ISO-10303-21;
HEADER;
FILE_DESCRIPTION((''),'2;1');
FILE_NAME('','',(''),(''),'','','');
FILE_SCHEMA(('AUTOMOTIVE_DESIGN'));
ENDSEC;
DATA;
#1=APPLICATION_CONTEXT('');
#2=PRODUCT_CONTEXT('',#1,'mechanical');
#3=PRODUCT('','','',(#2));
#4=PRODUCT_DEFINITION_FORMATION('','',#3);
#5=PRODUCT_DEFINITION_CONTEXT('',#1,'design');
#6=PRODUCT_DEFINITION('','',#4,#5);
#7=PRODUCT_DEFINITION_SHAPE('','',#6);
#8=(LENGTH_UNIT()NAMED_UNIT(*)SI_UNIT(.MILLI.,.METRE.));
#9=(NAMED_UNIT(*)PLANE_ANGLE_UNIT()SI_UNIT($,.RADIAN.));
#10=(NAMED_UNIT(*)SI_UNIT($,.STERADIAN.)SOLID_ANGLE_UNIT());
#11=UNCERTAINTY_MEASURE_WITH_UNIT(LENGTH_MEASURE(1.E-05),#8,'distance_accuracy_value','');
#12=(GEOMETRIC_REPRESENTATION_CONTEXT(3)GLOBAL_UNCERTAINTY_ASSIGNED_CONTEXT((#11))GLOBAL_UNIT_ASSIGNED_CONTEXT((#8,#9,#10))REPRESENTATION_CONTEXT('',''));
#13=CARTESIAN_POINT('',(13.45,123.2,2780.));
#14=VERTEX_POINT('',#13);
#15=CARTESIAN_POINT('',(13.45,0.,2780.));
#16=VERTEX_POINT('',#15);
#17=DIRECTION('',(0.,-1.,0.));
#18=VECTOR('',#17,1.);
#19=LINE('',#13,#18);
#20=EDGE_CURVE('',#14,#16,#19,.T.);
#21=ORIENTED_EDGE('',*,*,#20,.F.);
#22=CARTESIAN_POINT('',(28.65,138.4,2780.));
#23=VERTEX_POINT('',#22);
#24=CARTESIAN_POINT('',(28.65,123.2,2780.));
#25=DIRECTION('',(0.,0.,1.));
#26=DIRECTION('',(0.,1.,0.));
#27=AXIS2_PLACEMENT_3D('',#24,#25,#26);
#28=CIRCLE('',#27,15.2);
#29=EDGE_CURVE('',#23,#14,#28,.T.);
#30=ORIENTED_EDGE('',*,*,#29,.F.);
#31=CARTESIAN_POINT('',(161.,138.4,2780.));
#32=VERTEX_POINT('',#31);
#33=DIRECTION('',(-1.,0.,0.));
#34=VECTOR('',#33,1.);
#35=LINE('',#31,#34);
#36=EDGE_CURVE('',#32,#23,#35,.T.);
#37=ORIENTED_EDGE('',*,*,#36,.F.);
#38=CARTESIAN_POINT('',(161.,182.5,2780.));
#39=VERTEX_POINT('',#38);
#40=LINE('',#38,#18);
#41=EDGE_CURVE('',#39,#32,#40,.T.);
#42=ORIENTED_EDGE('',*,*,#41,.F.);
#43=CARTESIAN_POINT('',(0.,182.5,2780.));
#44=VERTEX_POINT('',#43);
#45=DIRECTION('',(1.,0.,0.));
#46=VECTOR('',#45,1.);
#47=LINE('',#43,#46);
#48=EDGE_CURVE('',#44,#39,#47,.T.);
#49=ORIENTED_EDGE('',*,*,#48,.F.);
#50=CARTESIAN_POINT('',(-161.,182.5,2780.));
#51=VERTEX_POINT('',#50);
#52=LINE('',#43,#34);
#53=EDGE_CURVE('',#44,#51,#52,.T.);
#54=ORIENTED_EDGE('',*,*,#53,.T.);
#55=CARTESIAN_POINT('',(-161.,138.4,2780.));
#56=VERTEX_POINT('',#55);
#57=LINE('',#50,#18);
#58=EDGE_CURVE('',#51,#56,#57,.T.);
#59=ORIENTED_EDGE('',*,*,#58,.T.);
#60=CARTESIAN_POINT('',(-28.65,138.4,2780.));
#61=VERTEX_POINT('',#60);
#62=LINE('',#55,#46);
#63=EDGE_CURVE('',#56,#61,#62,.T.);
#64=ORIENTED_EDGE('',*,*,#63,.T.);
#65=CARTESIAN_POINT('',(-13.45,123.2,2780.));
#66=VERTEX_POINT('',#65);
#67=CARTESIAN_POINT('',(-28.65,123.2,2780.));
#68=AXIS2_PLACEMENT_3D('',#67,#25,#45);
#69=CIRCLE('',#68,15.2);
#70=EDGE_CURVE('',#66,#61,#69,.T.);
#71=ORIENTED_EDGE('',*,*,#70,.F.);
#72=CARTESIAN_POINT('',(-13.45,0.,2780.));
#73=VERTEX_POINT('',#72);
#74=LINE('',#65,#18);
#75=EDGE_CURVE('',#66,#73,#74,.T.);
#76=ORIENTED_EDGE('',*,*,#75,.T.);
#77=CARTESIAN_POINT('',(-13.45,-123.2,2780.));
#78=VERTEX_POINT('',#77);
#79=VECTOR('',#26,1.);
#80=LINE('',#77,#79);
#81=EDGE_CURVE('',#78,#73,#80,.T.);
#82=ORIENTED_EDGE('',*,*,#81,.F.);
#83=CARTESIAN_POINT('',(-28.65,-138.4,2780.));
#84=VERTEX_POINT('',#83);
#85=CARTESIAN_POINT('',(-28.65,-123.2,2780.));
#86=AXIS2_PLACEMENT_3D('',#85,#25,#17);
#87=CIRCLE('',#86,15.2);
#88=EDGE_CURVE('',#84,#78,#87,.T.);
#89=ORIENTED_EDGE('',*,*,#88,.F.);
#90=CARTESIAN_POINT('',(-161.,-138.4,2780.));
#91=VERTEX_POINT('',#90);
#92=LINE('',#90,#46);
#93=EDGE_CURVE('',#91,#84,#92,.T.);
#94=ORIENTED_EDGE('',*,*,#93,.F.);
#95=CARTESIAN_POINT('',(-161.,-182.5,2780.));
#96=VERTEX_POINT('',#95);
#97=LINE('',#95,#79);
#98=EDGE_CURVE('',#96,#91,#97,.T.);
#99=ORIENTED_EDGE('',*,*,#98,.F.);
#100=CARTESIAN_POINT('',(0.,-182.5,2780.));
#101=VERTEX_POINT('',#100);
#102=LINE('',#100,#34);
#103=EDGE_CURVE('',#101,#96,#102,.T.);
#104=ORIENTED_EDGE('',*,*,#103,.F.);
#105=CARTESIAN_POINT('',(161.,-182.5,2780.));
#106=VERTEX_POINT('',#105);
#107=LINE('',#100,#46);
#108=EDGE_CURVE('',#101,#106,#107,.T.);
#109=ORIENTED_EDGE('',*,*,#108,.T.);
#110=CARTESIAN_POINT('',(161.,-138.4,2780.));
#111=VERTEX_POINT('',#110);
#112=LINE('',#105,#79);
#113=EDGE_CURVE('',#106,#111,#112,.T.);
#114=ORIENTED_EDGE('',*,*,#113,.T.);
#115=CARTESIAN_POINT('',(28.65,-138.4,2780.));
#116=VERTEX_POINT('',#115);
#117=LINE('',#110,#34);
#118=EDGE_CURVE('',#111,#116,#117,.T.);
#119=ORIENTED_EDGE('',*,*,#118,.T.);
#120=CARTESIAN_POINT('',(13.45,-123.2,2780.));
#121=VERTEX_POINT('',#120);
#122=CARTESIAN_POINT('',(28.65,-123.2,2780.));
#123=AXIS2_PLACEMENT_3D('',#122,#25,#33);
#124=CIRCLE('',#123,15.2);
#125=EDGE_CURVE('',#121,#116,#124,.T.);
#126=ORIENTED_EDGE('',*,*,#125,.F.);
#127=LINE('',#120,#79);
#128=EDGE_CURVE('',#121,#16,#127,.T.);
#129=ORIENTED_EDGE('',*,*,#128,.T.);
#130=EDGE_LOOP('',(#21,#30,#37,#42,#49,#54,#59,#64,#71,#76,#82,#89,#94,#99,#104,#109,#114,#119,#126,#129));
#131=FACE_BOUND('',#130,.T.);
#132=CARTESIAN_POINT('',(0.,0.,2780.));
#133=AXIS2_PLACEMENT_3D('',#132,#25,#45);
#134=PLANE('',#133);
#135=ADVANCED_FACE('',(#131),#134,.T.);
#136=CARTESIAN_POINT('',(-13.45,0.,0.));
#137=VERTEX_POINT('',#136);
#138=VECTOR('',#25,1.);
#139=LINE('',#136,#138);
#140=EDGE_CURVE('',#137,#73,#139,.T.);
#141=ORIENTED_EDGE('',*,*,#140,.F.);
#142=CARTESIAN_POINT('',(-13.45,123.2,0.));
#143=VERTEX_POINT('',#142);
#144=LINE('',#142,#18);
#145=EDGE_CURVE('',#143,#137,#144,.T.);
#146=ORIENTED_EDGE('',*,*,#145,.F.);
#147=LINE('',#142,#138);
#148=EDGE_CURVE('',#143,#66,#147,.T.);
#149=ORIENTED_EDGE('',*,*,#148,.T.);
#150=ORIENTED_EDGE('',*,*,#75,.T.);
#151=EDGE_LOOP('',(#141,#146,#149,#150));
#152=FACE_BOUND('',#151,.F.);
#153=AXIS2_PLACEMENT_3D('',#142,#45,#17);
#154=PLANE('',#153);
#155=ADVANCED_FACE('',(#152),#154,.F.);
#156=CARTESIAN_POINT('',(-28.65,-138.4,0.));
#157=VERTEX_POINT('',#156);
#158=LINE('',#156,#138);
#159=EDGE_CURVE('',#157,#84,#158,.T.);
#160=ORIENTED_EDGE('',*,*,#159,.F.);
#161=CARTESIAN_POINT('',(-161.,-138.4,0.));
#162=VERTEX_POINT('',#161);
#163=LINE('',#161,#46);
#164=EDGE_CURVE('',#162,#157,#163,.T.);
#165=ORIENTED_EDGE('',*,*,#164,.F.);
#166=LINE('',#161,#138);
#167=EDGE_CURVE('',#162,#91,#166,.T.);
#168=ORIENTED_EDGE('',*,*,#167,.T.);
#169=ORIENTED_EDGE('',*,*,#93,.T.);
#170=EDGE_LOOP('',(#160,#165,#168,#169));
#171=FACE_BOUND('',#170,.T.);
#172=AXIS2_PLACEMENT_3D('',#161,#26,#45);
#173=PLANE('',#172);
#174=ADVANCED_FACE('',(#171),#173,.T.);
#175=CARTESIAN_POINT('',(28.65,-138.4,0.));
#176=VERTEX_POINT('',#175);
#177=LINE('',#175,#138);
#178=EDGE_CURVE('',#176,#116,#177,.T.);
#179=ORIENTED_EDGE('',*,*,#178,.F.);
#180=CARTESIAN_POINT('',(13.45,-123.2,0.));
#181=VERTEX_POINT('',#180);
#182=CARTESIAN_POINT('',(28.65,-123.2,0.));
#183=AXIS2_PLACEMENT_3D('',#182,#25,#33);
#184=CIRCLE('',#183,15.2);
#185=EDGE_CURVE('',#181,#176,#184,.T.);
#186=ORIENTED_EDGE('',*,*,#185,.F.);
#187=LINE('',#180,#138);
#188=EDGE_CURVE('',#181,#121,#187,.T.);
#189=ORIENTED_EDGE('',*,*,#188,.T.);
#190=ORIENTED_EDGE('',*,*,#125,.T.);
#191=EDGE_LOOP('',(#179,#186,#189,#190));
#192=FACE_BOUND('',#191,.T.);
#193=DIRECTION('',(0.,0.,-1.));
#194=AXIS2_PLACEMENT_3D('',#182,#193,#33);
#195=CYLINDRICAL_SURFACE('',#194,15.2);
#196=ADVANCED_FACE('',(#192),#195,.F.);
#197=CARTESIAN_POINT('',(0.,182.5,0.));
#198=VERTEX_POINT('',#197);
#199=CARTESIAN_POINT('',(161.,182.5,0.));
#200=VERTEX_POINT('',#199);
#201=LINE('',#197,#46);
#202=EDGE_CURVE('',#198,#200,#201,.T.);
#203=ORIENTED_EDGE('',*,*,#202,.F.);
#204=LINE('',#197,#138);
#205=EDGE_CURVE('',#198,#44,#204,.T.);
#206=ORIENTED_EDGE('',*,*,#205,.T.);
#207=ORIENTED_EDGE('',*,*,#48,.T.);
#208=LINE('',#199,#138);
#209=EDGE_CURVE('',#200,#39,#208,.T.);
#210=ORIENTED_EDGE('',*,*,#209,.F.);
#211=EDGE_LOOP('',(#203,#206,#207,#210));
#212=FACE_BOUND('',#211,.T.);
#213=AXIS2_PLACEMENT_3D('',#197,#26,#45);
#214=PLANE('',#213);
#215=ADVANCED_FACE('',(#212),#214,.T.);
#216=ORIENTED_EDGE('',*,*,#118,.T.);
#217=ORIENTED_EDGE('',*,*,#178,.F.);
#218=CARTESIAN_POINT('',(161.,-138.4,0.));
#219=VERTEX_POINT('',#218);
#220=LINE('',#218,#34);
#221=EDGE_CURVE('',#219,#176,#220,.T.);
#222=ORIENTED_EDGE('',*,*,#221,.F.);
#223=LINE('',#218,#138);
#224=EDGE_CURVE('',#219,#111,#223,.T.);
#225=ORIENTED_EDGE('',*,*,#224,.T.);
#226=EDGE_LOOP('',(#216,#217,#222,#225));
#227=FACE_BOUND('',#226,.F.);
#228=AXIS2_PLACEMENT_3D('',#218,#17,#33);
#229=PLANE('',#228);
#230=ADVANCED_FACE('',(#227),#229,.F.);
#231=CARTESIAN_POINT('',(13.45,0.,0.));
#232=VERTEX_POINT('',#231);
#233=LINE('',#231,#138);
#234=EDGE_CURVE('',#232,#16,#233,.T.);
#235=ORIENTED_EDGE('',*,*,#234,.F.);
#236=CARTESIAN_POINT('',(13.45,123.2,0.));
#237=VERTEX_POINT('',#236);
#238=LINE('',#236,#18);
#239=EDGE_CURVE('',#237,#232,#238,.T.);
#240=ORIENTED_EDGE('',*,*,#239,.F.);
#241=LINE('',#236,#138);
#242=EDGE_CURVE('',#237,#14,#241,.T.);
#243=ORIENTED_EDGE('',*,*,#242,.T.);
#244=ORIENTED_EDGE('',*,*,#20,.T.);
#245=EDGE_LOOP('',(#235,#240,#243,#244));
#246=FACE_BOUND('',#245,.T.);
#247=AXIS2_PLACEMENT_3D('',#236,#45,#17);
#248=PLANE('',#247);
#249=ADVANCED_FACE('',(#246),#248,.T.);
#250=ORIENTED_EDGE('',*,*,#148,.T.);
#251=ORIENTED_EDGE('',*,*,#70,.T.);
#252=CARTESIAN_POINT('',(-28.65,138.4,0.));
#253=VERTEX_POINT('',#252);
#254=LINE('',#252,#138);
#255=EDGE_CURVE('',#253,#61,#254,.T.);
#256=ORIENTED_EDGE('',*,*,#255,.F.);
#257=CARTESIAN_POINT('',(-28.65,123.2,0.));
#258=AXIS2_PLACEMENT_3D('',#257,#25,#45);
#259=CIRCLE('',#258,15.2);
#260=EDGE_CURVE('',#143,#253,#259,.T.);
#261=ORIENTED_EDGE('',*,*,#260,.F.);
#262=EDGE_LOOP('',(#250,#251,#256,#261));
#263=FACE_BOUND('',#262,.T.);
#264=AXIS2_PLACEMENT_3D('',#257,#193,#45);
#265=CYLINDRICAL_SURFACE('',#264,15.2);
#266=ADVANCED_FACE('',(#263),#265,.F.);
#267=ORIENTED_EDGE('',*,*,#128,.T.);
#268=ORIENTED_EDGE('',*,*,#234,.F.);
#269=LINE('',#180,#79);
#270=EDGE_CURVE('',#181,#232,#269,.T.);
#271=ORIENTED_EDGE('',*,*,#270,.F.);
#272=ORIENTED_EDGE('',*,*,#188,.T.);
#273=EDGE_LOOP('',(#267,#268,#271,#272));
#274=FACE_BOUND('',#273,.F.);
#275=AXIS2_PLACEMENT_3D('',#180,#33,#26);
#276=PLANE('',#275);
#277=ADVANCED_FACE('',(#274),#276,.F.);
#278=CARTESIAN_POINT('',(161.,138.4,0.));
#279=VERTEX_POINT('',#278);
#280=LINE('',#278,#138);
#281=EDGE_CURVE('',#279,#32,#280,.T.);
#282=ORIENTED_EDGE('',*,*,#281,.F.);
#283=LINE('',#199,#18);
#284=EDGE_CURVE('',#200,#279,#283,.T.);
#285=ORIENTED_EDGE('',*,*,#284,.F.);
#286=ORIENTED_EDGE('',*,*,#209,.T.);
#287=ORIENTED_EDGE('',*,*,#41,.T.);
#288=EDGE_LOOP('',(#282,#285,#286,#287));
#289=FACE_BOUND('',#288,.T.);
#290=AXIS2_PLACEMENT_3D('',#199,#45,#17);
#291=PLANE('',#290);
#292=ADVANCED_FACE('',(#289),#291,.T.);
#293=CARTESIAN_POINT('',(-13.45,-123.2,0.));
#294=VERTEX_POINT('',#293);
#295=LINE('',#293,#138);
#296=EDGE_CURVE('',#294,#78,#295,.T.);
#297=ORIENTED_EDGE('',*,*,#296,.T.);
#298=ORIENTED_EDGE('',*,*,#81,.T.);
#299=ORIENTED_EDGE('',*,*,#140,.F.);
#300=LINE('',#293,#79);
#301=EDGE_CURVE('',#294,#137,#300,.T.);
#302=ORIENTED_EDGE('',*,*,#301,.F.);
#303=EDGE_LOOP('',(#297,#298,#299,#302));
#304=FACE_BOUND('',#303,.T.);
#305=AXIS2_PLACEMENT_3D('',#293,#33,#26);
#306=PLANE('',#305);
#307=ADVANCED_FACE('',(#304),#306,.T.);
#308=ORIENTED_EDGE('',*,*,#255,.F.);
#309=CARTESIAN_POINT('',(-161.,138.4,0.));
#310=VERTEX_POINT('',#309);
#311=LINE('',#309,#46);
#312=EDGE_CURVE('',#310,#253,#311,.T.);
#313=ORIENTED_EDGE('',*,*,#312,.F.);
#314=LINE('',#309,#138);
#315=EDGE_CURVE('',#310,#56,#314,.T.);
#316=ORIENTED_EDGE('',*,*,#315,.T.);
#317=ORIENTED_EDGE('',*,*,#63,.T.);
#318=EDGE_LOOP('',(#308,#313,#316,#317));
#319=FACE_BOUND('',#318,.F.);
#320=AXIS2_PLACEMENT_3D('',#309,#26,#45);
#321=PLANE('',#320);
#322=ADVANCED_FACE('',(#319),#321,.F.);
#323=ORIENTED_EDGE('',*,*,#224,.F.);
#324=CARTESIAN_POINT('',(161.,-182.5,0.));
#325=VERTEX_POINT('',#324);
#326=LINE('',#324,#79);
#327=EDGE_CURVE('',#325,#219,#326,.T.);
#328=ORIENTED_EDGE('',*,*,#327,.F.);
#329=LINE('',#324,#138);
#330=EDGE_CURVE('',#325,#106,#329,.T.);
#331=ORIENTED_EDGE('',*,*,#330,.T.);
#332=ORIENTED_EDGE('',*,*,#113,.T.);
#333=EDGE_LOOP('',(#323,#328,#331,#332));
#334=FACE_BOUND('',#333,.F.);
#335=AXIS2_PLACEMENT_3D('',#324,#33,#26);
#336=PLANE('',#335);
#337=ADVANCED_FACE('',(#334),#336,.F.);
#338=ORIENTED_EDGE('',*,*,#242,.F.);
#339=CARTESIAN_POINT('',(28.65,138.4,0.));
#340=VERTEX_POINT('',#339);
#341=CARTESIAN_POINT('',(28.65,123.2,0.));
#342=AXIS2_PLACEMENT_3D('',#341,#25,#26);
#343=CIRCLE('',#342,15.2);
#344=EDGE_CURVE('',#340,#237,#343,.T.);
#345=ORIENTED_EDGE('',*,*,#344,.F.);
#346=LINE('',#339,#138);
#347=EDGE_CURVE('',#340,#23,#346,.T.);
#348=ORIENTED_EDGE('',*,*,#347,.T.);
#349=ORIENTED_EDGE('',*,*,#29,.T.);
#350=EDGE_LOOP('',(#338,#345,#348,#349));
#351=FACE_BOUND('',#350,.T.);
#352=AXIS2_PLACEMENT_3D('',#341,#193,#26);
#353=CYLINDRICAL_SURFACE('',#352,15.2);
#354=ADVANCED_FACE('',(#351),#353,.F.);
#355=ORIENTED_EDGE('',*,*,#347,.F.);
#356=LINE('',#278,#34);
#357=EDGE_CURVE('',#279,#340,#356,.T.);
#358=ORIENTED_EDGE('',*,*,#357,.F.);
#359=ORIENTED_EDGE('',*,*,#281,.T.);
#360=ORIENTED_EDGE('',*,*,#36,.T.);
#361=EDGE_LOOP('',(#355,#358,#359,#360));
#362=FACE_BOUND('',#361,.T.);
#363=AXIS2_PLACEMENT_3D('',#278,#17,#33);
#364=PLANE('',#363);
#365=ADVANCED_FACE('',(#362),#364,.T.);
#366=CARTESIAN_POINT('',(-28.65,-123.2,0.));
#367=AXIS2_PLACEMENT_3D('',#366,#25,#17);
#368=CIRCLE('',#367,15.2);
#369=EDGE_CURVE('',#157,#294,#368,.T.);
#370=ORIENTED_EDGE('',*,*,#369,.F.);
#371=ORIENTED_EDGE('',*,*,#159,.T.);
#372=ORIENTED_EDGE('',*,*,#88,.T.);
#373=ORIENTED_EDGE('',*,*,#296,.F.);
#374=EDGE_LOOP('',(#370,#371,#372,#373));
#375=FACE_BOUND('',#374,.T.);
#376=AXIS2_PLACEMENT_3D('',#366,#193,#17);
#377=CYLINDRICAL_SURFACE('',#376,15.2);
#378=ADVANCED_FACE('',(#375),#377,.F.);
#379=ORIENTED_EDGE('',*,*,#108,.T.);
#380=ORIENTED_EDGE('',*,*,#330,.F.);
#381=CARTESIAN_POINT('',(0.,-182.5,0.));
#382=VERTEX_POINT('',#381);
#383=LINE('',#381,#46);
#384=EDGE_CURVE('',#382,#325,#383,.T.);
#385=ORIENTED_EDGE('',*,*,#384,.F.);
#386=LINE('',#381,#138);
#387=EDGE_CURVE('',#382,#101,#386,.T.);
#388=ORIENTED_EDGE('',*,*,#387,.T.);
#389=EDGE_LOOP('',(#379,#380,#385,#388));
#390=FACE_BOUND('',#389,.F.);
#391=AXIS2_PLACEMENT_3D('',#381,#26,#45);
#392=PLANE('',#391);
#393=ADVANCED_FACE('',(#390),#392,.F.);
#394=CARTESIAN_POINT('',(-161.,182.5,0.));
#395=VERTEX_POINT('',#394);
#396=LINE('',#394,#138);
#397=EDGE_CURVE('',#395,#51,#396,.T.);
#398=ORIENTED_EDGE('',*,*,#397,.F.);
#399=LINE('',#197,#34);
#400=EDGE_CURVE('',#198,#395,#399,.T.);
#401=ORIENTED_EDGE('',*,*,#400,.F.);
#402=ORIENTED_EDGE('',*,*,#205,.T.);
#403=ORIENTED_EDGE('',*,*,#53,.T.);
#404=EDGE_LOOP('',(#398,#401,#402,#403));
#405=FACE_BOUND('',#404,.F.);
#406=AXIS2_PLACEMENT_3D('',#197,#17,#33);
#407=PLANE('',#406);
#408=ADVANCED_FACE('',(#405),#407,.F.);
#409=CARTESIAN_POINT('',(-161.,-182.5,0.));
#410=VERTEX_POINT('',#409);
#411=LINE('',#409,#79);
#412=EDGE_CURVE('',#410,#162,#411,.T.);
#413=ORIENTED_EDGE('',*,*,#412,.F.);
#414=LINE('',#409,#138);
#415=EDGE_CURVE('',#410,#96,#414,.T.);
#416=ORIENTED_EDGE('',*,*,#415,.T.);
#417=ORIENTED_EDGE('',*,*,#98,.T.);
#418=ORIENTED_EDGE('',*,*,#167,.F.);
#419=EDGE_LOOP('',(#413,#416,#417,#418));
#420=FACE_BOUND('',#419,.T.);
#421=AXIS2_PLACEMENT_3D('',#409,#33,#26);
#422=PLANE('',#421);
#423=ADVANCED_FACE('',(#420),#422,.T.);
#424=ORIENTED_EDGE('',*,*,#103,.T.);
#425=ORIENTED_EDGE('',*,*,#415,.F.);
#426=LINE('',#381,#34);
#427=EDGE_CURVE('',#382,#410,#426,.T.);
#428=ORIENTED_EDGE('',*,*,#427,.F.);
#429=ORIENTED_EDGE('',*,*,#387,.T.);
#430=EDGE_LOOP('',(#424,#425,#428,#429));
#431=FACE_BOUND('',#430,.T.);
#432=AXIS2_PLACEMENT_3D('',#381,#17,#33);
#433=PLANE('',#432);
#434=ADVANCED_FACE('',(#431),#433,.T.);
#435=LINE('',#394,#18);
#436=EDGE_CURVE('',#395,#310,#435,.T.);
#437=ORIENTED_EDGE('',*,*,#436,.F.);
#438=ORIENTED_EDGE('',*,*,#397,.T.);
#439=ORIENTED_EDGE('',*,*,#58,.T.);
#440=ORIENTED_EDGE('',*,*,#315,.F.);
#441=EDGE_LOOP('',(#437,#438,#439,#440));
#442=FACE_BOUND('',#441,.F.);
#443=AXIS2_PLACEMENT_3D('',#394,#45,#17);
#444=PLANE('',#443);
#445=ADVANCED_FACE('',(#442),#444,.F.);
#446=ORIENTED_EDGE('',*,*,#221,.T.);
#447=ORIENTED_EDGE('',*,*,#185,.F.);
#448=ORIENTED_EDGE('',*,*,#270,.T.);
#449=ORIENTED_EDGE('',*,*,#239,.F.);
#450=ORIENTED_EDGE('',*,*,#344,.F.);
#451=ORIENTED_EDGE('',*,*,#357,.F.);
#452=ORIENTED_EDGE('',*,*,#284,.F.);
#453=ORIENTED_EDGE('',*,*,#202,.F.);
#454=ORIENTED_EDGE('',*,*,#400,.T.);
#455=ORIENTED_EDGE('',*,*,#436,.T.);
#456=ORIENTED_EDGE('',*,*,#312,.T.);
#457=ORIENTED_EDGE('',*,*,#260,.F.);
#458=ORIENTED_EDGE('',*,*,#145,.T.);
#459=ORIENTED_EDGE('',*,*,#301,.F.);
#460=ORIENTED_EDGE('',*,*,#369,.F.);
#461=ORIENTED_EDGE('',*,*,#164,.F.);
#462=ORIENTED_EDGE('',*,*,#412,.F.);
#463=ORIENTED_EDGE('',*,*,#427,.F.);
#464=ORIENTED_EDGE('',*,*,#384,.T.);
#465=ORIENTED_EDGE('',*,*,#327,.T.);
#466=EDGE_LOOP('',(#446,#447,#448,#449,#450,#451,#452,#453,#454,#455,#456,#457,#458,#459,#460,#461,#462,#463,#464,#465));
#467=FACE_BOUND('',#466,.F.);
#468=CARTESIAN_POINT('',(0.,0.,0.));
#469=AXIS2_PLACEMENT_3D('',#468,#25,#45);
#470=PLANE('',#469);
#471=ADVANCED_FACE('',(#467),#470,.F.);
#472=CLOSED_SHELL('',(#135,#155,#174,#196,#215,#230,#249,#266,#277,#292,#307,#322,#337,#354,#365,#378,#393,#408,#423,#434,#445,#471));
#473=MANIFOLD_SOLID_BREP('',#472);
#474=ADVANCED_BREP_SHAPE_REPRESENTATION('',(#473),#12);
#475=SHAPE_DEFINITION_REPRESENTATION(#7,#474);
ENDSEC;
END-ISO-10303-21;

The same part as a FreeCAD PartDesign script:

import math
import FreeCAD as App
import Part
import Sketcher

V = App.Vector
Q = App.Units.Quantity

doc = App.newDocument("Part")
body = doc.addObject("PartDesign::Body", "Body")

# Sketch on XY plane
sketch1 = body.newObject("Sketcher::SketchObject", "Sketch")
sketch1.AttachmentSupport = (doc.getObject("XY_Plane"), [""])
sketch1.MapMode = "FlatFace"
sketch1.addGeometry([
    Part.LineSegment(V(-161, -138, 0), V(-161, -182, 0)),  # 0
    Part.LineSegment(V(-161, -182, 0), V(161, -182, 0)),  # 1
    Part.LineSegment(V(161, -182, 0), V(161, -138, 0)),  # 2
    Part.LineSegment(V(161, -138, 0), V(29, -138, 0)),  # 3
    Part.ArcOfCircle(Part.Circle(V(29, -123, 0), V(0, 0, 1), 15), math.radians(180), math.radians(270)),  # 4
    Part.LineSegment(V(13, -123, 0), V(13, 123, 0)),  # 5
    Part.ArcOfCircle(Part.Circle(V(29, 123, 0), V(0, 0, 1), 15), math.radians(90), math.radians(180)),  # 6
    Part.LineSegment(V(29, 138, 0), V(161, 138, 0)),  # 7
    Part.LineSegment(V(161, 138, 0), V(161, 182, 0)),  # 8
    Part.LineSegment(V(161, 182, 0), V(-161, 182, 0)),  # 9
    Part.LineSegment(V(-161, 182, 0), V(-161, 138, 0)),  # 10
    Part.LineSegment(V(-161, 138, 0), V(-29, 138, 0)),  # 11
    Part.ArcOfCircle(Part.Circle(V(-29, 123, 0), V(0, 0, 1), 15), math.radians(0), math.radians(90)),  # 12
    Part.LineSegment(V(-13, 123, 0), V(-13, -123, 0)),  # 13
    Part.ArcOfCircle(Part.Circle(V(-29, -123, 0), V(0, 0, 1), 15), math.radians(-90), math.radians(0)),  # 14
    Part.LineSegment(V(-29, -138, 0), V(-161, -138, 0)),  # 15
], False)
sketch1.addConstraint([
    Sketcher.Constraint("Coincident", 0, 2, 1, 1),
    Sketcher.Constraint("Coincident", 1, 2, 2, 1),
    Sketcher.Constraint("Coincident", 2, 2, 3, 1),
    Sketcher.Constraint("Tangent", 3, 2, 4, 2),
    Sketcher.Constraint("Tangent", 4, 1, 5, 1),
    Sketcher.Constraint("Tangent", 5, 2, 6, 2),
    Sketcher.Constraint("Tangent", 6, 1, 7, 1),
    Sketcher.Constraint("Coincident", 7, 2, 8, 1),
    Sketcher.Constraint("Coincident", 8, 2, 9, 1),
    Sketcher.Constraint("Coincident", 9, 2, 10, 1),
    Sketcher.Constraint("Coincident", 10, 2, 11, 1),
    Sketcher.Constraint("Tangent", 11, 2, 12, 2),
    Sketcher.Constraint("Tangent", 12, 1, 13, 1),
    Sketcher.Constraint("Tangent", 13, 2, 14, 2),
    Sketcher.Constraint("Tangent", 14, 1, 15, 1),
    Sketcher.Constraint("Coincident", 15, 2, 0, 1),
    Sketcher.Constraint("Vertical", 0),
    Sketcher.Constraint("Horizontal", 1),
    Sketcher.Constraint("Vertical", 2),
    Sketcher.Constraint("Horizontal", 3),
    Sketcher.Constraint("Vertical", 5),
    Sketcher.Constraint("Horizontal", 7),
    Sketcher.Constraint("Vertical", 8),
    Sketcher.Constraint("Horizontal", 9),
    Sketcher.Constraint("Vertical", 10),
    Sketcher.Constraint("Horizontal", 11),
    Sketcher.Constraint("Vertical", 13),
    Sketcher.Constraint("Horizontal", 15),
    Sketcher.Constraint("Equal", 4, 6),
    Sketcher.Constraint("Equal", 6, 12),
    Sketcher.Constraint("Equal", 12, 14),
    Sketcher.Constraint("Symmetric", 4, 3, 12, 3, -1, 1),
    Sketcher.Constraint("Symmetric", 0, 2, 8, 2, -1, 1),
    Sketcher.Constraint("Symmetric", 7, 2, 10, 2, -2),
    Sketcher.Constraint("Symmetric", 2, 2, 15, 2, -2),
    Sketcher.Constraint("Radius", 4, Q("15.2 mm")),
    Sketcher.Constraint("DistanceY", 0, 2, 0, 1, Q("44.1 mm")),
    Sketcher.Constraint("DistanceX", 0, 2, -1, 1, Q("161 mm")),
    Sketcher.Constraint("DistanceY", 0, 2, -1, 1, Q("182.5 mm")),
    Sketcher.Constraint("DistanceX", -1, 1, 4, 1, Q("13.45 mm")),
])
pad1 = body.newObject("PartDesign::Pad", "Pad")
pad1.Profile = sketch1
pad1.Length = 2780

doc.recompute()
